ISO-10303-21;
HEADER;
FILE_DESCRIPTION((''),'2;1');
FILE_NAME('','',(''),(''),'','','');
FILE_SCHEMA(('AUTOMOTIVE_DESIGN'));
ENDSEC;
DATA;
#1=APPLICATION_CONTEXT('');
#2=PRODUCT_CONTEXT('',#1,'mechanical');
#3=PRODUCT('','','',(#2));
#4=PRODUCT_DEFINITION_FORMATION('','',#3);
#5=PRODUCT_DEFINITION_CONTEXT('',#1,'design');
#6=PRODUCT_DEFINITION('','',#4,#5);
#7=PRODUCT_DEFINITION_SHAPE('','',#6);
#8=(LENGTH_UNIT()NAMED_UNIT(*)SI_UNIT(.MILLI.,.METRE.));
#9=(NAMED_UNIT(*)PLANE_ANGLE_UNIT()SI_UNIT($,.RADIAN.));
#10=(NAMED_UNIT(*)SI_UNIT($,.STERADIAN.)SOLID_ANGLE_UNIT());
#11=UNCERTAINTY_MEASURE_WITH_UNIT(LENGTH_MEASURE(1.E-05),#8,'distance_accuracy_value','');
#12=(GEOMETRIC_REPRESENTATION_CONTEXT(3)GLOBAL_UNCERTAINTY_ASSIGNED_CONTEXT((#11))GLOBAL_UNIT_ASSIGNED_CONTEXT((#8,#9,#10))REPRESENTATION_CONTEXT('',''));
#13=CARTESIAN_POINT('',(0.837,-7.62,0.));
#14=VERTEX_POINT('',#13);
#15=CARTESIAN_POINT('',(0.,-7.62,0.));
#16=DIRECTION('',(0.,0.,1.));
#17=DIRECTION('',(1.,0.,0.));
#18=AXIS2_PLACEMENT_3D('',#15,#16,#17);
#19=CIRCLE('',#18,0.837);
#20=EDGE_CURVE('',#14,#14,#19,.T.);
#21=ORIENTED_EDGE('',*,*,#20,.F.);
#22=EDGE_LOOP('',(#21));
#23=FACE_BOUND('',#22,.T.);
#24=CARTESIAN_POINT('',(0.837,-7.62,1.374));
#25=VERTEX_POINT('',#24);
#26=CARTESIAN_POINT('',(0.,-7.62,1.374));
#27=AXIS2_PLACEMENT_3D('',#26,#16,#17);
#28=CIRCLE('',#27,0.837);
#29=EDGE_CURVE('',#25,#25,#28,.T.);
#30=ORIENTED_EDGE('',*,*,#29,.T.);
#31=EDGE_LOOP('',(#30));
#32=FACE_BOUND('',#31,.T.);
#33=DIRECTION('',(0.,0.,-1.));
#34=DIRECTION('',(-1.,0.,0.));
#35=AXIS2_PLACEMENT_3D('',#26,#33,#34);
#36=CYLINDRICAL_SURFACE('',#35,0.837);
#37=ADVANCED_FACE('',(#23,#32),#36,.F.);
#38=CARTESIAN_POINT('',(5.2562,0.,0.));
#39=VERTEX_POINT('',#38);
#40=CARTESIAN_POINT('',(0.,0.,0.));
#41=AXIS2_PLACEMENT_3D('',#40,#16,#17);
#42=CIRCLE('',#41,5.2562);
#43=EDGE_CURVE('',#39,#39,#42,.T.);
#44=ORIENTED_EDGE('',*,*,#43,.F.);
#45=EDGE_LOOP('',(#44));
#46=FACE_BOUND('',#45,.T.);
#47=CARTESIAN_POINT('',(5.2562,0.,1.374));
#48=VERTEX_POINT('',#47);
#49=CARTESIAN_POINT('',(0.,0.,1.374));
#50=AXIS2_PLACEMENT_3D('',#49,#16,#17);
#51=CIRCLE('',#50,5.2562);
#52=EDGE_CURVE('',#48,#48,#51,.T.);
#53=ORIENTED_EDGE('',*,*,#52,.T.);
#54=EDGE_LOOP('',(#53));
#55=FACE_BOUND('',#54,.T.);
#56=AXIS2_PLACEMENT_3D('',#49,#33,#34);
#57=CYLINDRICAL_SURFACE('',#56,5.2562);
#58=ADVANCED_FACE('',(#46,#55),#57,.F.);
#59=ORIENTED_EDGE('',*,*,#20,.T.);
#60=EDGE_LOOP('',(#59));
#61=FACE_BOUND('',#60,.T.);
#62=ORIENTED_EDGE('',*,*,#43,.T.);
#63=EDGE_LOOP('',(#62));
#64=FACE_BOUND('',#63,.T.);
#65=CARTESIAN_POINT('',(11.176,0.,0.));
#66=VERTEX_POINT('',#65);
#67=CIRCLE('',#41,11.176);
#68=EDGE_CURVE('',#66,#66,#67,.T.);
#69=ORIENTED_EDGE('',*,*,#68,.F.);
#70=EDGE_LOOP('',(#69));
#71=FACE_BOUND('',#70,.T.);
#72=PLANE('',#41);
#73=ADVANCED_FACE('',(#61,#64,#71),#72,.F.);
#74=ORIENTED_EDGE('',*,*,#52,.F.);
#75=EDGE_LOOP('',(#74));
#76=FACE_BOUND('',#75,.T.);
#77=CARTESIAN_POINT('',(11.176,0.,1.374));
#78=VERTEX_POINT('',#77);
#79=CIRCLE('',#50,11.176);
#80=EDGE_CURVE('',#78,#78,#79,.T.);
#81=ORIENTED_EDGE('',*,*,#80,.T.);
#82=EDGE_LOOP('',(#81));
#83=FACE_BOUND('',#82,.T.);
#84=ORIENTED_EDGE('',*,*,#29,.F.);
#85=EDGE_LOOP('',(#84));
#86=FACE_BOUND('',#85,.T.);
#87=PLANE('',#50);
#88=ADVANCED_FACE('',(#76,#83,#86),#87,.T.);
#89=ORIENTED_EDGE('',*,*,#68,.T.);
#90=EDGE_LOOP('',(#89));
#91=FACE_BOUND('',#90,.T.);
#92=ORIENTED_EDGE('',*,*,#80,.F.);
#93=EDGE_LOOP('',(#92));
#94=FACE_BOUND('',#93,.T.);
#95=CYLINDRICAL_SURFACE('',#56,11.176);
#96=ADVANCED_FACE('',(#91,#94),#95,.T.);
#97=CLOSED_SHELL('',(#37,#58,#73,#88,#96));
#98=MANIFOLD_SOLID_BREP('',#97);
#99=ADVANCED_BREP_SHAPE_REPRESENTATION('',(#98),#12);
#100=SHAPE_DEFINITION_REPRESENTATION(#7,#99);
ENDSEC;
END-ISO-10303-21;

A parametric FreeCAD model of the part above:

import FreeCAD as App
import Part
import Sketcher
Q = App.Units.Quantity

doc = App.newDocument("Part")
body = doc.addObject("PartDesign::Body", "Body")

# Sketch on XY plane
sketch1 = body.newObject("Sketcher::SketchObject", "Sketch")
sketch1.AttachmentSupport = (doc.getObject("XY_Plane"), [""])
sketch1.MapMode = "FlatFace"
sketch1.addGeometry([
    Part.Circle(App.Vector(0, 0, 0), App.Vector(0, 0, 1), 11.176),
    Part.Circle(App.Vector(0, -7.62, 0), App.Vector(0, 0, 1), 0.837),
    Part.Circle(App.Vector(0, 0, 0), App.Vector(0, 0, 1), 5.2562),
], False)
sketch1.addConstraint([
    Sketcher.Constraint("Coincident", 0, 3, -1, 1),
    Sketcher.Constraint("Coincident", 2, 3, -1, 1),
    Sketcher.Constraint("PointOnObject", 1, 3, -2),
    Sketcher.Constraint("Diameter", 0, Q("0.88 in")),
    Sketcher.Constraint("DistanceY", 1, 3, -1, 1, Q("0.3 in")),
    Sketcher.Constraint("Diameter", 1, Q("1.674 mm")),
    Sketcher.Constraint("Diameter", 2, Q("10.5124 mm")),
])
pad1 = body.newObject("PartDesign::Pad", "Pad")
pad1.Profile = sketch1
pad1.Length = 1.374

doc.recompute()
